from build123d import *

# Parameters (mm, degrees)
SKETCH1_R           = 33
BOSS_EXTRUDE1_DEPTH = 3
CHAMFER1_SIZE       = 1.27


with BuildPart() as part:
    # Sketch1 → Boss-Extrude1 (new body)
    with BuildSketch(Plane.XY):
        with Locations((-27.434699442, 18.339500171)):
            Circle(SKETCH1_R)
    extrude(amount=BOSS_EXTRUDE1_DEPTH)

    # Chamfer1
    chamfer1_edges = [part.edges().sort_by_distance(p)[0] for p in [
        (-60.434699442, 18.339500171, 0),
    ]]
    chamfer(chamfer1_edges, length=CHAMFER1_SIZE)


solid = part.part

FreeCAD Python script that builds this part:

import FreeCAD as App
import Part
import Sketcher
from FreeCAD import Vector
Q = App.Units.Quantity


def edges_at(feature, points):
    """Names of the edges that pass closest to the given points."""
    edges = feature.Shape.Edges
    near = lambda p: min(range(len(edges)), key=lambda i: edges[i].distToShape(Part.Vertex(*p))[0])
    return sorted({f"Edge{near(p) + 1}" for p in points})

doc = App.newDocument("Part")
params = doc.addObject("Spreadsheet::Sheet", "Params")
for row, (alias, value) in enumerate([
    ("sketch1_diameter", "66 mm"),
    ("pad1_length", "3 mm"),
    ("chamfer_size", "1.27 mm"),
], start=1):
    params.set(f"A{row}", alias)
    params.set(f"B{row}", "=" + value)
    params.setAlias(f"B{row}", alias)

body = doc.addObject("PartDesign::Body", "Body")

# Sketch on XY plane
sketch1 = body.newObject("Sketcher::SketchObject", "Sketch")
sketch1.AttachmentSupport = (doc.getObject("XY_Plane"), [""])
sketch1.MapMode = "FlatFace"
sketch1.addGeometry(Part.Circle(Vector(-27, 18, 0), Vector(0, 0, 1), 33), False)
sketch1.addConstraint([
    Sketcher.Constraint("Diameter", 0, Q("66 mm")),
    Sketcher.Constraint("DistanceX", 0, 3, -1, 1, Q("27.434699 mm")),
    Sketcher.Constraint("DistanceY", -1, 1, 0, 3, Q("18.3395 mm")),
])
sketch1.setExpression("Constraints[0]", "Params.sketch1_diameter")
pad1 = body.newObject("PartDesign::Pad", "Pad")
pad1.Profile = sketch1
pad1.setExpression("Length", "Params.pad1_length")
doc.recompute()

chamfer = body.newObject("PartDesign::Chamfer", "Chamfer")
chamfer.Base = (pad1, edges_at(pad1, [(-60.435, 18.34, 0)]))
chamfer.setExpression("Size", "Params.chamfer_size")

doc.recompute()
